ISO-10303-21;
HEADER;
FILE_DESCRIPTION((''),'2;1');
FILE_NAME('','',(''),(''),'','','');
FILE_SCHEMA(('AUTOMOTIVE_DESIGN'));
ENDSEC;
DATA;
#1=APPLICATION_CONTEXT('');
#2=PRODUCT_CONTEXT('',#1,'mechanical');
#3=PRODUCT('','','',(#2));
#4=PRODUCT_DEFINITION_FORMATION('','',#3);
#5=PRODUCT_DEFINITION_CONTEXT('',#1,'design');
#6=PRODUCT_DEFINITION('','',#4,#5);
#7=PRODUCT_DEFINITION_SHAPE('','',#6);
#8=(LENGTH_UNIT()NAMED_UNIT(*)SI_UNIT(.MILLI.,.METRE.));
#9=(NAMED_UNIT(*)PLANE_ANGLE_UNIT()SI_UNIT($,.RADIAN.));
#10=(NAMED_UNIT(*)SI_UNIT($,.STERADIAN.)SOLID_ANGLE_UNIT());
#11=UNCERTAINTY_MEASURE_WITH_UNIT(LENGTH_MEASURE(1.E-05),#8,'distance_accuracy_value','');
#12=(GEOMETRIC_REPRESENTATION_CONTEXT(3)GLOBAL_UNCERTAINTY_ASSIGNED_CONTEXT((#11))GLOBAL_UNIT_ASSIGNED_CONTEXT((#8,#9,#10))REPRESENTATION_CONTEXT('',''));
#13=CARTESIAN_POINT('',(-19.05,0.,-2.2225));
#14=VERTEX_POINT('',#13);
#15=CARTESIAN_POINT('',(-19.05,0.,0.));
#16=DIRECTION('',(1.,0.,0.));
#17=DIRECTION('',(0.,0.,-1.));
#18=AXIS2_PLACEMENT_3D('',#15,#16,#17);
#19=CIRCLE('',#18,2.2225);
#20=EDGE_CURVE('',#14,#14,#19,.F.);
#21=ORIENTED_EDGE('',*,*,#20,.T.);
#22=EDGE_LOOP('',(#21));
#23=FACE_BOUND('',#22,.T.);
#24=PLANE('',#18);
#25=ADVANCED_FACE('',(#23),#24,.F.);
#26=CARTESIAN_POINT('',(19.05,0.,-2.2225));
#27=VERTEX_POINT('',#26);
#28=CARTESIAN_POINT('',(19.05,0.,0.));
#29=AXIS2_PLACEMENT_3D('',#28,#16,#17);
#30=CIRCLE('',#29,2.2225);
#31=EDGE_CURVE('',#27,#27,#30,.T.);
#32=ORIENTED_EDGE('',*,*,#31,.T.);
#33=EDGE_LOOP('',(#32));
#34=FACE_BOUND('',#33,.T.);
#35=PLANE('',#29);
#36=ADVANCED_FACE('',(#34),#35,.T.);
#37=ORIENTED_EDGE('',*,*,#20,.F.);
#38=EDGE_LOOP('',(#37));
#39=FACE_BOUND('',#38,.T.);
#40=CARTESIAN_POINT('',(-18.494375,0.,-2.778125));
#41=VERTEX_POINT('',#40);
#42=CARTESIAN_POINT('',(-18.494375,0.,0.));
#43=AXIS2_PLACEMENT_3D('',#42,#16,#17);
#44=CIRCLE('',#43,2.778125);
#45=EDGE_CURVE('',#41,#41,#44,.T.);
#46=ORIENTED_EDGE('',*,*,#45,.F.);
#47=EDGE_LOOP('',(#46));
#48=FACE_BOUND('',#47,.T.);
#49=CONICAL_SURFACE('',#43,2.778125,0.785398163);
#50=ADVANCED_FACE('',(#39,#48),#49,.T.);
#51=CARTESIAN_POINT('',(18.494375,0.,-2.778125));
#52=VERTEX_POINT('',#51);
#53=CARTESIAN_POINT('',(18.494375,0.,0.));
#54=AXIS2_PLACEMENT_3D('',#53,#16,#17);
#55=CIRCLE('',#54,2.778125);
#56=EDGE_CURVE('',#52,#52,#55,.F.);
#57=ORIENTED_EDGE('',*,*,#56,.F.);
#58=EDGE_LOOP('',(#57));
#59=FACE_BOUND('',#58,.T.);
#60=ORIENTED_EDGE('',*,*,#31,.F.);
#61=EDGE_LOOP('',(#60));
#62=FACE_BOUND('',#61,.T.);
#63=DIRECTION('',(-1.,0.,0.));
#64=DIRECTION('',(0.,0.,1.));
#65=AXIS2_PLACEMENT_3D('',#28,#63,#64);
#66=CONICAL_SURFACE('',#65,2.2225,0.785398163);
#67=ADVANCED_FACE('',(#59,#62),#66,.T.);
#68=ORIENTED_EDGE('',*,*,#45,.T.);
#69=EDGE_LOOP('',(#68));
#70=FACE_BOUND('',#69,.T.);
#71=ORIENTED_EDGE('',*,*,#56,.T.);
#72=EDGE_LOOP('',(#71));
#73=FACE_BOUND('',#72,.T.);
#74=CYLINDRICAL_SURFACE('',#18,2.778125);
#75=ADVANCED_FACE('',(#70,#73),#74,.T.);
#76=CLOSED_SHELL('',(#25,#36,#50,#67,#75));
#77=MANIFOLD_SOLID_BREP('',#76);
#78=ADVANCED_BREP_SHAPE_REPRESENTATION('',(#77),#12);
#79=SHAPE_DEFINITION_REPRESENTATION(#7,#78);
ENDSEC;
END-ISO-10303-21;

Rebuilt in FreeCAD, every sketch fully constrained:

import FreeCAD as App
import Part
import Sketcher
from FreeCAD import Vector
Q = App.Units.Quantity


def edges_at(feature, points):
    """Names of the edges that pass closest to the given points."""
    edges = feature.Shape.Edges
    near = lambda p: min(range(len(edges)), key=lambda i: edges[i].distToShape(Part.Vertex(*p))[0])
    return sorted({f"Edge{near(p) + 1}" for p in points})

doc = App.newDocument("Part")
body = doc.addObject("PartDesign::Body", "Body")

# Sketch on YZ plane
sketch1 = body.newObject("Sketcher::SketchObject", "Sketch")
sketch1.AttachmentSupport = (doc.getObject("YZ_Plane"), [""])
sketch1.MapMode = "FlatFace"
sketch1.addGeometry(Part.Circle(Vector(0, 0, 0), Vector(0, 0, 1), 2.8), False)
sketch1.addConstraint([
    Sketcher.Constraint("Coincident", 0, 3, -1, 1),
    Sketcher.Constraint("Diameter", 0, Q("0.21875 in")),
])
pad1 = body.newObject("PartDesign::Pad", "Pad")
pad1.Profile = sketch1
pad1.Type = "TwoLengths"
pad1.Length = Q("0.75 in")
pad1.Length2 = Q("0.75 in")
doc.recompute()

chamfer = body.newObject("PartDesign::Chamfer", "Chamfer")
chamfer.Base = (pad1, edges_at(pad1, [(-19.05, 0, 2.778), (19.05, 0, 2.778)]))
chamfer.Size = 0.555625

doc.recompute()
